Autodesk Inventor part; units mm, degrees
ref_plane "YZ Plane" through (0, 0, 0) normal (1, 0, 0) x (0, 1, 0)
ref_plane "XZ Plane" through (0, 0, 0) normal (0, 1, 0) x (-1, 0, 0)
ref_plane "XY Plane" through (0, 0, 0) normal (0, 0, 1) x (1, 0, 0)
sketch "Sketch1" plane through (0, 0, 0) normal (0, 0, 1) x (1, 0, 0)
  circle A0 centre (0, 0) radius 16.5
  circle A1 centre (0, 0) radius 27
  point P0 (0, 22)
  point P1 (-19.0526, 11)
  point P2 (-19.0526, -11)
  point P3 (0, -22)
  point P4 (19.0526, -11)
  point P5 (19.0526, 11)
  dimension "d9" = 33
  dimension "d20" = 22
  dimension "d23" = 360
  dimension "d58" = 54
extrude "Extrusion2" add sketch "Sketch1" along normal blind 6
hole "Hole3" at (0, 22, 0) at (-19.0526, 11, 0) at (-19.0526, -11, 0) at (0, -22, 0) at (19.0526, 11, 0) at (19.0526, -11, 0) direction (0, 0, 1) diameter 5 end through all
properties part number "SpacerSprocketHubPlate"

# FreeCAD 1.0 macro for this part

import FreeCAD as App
import Part
import Sketcher
Q = App.Units.Quantity

doc = App.newDocument("Part")
body = doc.addObject("PartDesign::Body", "Body")

sketch1 = doc.addObject("Sketcher::SketchObject", "Sketch")
body.addObject(sketch1)
sketch1.AttachmentSupport = (doc.XY_Plane, [""])
sketch1.MapMode = "FlatFace"
sketch1.addGeometry([
    Part.Circle(App.Vector(0, 0, 0), App.Vector(0, 0, 1), 27),
    Part.Circle(App.Vector(0, 0, 0), App.Vector(0, 0, 1), 16),
], False)
sketch1.addConstraint([
    Sketcher.Constraint("Coincident", 0, 3, -1, 1),
    Sketcher.Constraint("Coincident", 1, 3, -1, 1),
    Sketcher.Constraint("Diameter", 0, Q("54 mm")),
    Sketcher.Constraint("Diameter", 1, Q("33 mm")),
])
pad1 = doc.addObject("PartDesign::Pad", "Pad")
body.addObject(pad1)
pad1.Profile = sketch1
pad1.Length = 6

sketch2 = doc.addObject("Sketcher::SketchObject", "Sketch001")
body.addObject(sketch2)
sketch2.AttachmentSupport = (doc.XY_Plane, [""])
sketch2.MapMode = "FlatFace"
sketch2.addGeometry([
    Part.Circle(App.Vector(0, 22, 0), App.Vector(0, 0, 1), 2.5),
    Part.Circle(App.Vector(-19.1, 11, 0), App.Vector(0, 0, 1), 2.5),
    Part.Circle(App.Vector(-19.1, -11, 0), App.Vector(0, 0, 1), 2.5),
    Part.Circle(App.Vector(0, -22, 0), App.Vector(0, 0, 1), 2.5),
    Part.Circle(App.Vector(19.1, 11, 0), App.Vector(0, 0, 1), 2.5),
    Part.Circle(App.Vector(19.1, -11, 0), App.Vector(0, 0, 1), 2.5),
], False)
sketch2.addConstraint([
    Sketcher.Constraint("Equal", 0, 1),
    Sketcher.Constraint("Equal", 1, 2),
    Sketcher.Constraint("Equal", 2, 3),
    Sketcher.Constraint("Equal", 3, 4),
    Sketcher.Constraint("Equal", 4, 5),
    Sketcher.Constraint("Symmetric", 0, 3, 3, 3, -1, 1),
    Sketcher.Constraint("Symmetric", 2, 3, 4, 3, -1, 1),
    Sketcher.Constraint("Symmetric", 1, 3, 5, 3, -1, 1),
    Sketcher.Constraint("Symmetric", 1, 3, 4, 3, -2),
    Sketcher.Constraint("PointOnObject", 0, 3, -2),
    Sketcher.Constraint("Diameter", 0, Q("5 mm")),
    Sketcher.Constraint("DistanceY", -1, 1, 0, 3, Q("22 mm")),
    Sketcher.Constraint("DistanceY", -1, 1, 1, 3, Q("11 mm")),
    Sketcher.Constraint("DistanceX", 1, 3, -1, 1, Q("19.0526 mm")),
])
doc.recompute()
hole = doc.addObject("PartDesign::Hole", "Hole")
body.addObject(hole)
hole.Profile = sketch2
hole.ThreadType = "None"
hole.Diameter = 5
hole.DepthType = "ThroughAll"
hole.Reversed = True

doc.recompute()
